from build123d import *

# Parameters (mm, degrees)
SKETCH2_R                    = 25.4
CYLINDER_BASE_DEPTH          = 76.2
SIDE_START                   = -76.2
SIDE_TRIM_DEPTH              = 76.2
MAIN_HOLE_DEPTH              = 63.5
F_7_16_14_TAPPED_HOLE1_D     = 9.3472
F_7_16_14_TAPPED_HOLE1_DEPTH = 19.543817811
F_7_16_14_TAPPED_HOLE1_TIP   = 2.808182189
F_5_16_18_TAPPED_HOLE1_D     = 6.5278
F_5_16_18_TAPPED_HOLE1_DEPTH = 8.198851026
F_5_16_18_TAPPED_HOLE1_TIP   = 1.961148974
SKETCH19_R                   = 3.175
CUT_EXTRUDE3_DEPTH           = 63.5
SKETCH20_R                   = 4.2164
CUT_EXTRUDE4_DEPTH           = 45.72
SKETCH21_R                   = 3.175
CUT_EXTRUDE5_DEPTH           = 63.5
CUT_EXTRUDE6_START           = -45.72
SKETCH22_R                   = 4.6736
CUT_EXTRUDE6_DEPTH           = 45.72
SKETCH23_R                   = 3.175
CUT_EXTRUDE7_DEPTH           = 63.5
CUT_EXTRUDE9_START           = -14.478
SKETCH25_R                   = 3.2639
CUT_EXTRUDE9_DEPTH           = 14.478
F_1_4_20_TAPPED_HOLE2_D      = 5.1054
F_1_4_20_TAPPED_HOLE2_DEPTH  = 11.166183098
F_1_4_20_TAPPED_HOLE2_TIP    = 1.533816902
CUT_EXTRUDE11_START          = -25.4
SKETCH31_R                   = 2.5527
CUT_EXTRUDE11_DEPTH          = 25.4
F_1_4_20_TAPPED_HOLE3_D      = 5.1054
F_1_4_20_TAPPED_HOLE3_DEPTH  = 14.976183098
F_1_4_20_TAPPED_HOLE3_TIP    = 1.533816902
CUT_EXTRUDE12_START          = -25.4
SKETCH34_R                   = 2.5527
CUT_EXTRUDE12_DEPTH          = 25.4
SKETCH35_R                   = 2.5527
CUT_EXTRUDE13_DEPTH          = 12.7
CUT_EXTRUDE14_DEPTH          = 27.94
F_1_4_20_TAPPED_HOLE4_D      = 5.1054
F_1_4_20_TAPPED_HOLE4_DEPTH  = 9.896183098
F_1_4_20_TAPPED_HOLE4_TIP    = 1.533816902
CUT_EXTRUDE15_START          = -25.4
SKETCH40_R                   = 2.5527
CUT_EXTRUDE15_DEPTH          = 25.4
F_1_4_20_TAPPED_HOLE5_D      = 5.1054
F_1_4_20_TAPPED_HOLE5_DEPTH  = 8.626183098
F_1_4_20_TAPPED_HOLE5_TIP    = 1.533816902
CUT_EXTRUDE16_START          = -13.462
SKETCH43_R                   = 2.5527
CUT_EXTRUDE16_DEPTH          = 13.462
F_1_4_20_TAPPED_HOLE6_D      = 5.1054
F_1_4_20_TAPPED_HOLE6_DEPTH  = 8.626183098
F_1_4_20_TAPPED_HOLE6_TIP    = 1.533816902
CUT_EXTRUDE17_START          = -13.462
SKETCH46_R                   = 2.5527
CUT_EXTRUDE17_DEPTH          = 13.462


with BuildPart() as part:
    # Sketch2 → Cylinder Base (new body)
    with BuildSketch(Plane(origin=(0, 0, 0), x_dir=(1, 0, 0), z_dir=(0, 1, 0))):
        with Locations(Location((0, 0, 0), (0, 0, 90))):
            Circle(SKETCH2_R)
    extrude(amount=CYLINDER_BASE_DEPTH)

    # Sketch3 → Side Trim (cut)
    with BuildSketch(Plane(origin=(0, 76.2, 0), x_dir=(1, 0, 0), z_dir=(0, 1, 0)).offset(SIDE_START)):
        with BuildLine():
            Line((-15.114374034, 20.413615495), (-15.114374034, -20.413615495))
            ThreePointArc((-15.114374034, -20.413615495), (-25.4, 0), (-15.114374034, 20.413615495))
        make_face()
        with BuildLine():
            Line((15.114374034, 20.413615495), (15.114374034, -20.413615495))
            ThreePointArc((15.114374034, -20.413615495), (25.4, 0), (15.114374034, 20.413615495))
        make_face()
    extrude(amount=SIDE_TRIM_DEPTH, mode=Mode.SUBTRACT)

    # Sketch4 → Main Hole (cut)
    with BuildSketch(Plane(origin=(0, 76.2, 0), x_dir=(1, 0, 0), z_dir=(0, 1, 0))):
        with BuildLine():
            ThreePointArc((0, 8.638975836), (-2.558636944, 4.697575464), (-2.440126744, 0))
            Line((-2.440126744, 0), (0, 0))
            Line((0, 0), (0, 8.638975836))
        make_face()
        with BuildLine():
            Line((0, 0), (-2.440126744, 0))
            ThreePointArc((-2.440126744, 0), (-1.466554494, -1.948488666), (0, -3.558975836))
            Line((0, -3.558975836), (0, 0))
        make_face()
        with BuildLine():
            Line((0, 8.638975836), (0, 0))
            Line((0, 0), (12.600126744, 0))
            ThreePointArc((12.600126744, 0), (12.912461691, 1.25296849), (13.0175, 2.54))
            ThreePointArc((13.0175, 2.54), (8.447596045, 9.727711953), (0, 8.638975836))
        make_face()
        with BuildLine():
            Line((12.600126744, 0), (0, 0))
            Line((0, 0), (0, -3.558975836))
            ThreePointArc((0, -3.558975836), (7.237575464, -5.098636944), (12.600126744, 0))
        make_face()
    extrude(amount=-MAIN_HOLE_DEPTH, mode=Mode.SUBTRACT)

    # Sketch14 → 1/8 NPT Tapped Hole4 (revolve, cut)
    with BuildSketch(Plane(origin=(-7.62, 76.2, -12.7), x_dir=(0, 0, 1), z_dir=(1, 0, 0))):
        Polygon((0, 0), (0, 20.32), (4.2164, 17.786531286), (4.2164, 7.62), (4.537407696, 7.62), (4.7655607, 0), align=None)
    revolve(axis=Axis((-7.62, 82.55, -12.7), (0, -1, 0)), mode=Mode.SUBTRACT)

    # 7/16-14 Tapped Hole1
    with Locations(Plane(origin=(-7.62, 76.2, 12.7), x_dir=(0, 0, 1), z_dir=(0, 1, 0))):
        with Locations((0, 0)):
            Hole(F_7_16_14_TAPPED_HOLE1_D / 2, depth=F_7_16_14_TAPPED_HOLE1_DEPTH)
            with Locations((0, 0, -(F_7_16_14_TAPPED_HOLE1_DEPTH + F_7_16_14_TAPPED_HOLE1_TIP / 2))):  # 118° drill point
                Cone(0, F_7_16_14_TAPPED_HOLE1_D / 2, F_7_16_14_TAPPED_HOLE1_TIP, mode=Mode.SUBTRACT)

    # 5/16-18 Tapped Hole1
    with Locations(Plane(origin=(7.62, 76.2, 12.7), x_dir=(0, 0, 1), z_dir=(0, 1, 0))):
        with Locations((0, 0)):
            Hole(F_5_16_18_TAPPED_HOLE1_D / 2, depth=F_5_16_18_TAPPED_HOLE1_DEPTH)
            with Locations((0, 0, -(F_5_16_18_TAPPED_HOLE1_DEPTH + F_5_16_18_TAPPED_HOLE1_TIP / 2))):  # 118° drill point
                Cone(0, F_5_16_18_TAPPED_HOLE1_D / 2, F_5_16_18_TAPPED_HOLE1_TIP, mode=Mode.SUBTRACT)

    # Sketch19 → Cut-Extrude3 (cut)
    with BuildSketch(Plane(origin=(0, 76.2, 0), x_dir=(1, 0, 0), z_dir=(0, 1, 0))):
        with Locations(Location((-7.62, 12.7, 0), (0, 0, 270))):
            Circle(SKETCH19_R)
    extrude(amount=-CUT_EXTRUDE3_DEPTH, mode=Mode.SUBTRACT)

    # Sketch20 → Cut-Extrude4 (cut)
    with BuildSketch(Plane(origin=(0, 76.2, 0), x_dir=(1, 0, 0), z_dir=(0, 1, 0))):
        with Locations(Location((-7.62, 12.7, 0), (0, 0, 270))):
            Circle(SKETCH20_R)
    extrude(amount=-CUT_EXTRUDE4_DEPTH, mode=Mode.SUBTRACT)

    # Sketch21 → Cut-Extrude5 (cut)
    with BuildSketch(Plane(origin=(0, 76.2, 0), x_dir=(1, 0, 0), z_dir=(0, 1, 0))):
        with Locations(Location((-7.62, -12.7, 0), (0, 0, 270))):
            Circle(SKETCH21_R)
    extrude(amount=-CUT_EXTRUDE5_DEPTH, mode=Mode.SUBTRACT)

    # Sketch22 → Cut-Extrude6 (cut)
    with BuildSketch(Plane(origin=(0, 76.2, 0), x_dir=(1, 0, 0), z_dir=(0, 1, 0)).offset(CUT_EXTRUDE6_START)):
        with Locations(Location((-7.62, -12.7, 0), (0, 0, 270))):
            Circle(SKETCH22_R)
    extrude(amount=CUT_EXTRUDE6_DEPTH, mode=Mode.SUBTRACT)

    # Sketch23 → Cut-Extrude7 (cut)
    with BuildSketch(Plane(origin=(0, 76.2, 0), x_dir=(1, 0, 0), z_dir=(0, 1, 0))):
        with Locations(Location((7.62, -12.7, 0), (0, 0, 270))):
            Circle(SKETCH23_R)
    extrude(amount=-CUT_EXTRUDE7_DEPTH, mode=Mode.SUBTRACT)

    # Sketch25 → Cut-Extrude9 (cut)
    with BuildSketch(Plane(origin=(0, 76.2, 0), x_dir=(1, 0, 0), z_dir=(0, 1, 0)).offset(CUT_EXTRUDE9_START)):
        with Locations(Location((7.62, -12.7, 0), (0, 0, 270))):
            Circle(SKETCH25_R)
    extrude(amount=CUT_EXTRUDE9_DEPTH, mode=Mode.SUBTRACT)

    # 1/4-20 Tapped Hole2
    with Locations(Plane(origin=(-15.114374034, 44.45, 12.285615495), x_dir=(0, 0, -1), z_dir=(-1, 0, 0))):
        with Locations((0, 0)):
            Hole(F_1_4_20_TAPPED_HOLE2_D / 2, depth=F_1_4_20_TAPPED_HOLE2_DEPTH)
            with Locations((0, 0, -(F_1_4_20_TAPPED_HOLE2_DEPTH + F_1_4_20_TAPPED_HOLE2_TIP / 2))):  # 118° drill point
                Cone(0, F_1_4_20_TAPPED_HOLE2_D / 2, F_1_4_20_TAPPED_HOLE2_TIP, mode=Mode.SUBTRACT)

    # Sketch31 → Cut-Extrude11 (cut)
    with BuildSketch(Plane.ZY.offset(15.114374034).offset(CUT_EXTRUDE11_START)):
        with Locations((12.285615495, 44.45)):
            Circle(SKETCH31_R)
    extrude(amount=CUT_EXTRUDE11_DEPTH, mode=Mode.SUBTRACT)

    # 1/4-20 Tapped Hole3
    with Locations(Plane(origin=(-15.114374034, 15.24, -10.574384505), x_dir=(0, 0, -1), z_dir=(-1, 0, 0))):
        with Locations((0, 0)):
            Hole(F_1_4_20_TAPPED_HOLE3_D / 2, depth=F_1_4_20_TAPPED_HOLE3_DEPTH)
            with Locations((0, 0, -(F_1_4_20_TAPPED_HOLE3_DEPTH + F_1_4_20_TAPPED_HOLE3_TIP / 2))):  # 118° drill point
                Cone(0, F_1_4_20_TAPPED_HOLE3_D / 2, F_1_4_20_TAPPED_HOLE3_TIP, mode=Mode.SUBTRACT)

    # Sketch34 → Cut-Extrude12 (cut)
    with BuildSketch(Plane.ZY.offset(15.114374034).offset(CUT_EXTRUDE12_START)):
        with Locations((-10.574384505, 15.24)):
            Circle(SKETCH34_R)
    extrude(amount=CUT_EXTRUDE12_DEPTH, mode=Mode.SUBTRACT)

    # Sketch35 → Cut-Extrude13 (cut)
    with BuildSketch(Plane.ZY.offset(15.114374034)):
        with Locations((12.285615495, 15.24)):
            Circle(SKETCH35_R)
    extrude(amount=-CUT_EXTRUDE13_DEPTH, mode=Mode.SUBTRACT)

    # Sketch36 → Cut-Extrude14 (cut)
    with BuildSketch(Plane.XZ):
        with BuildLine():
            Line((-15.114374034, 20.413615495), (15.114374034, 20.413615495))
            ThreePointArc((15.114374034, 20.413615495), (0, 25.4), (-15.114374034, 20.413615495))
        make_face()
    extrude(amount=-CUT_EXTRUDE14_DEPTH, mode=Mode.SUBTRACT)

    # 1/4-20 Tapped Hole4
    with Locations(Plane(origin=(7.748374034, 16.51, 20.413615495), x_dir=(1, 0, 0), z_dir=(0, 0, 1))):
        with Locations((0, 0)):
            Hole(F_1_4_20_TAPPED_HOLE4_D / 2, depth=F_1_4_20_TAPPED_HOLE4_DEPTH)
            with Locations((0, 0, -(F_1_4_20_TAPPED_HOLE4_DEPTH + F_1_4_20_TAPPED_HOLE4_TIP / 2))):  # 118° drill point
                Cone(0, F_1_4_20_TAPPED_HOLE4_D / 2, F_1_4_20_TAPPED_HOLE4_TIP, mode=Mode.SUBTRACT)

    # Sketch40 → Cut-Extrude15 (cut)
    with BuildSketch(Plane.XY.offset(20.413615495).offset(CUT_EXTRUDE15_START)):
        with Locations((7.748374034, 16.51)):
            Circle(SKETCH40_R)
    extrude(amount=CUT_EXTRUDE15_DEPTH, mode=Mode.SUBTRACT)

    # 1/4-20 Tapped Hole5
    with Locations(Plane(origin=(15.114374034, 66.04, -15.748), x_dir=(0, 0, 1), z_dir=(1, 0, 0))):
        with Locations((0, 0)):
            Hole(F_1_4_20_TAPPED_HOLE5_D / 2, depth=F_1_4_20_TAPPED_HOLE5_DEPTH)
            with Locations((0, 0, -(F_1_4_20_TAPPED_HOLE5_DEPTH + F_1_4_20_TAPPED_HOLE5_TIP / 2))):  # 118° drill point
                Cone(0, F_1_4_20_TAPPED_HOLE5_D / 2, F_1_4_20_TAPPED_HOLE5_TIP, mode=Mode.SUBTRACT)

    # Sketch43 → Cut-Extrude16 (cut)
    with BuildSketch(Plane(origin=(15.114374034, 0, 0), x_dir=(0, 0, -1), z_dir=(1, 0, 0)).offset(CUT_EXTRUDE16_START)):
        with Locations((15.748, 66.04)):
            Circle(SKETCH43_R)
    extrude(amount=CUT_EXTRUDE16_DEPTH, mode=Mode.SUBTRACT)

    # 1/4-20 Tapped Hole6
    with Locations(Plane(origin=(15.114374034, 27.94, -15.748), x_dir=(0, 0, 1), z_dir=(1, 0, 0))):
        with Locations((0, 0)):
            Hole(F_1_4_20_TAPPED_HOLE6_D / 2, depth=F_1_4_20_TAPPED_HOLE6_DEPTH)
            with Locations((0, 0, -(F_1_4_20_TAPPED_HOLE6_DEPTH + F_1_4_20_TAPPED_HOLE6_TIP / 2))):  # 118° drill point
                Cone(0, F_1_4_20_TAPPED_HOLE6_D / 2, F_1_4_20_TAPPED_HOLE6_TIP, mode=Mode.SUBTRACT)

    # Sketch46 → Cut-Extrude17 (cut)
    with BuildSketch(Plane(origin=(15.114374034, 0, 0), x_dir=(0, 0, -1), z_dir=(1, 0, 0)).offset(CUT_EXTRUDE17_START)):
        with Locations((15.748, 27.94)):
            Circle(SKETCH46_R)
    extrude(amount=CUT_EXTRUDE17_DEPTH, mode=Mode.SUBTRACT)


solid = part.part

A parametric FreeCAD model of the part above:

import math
import FreeCAD as App
import Part
import Sketcher
from FreeCAD import Vector
Q = App.Units.Quantity

doc = App.newDocument("Part")
body = doc.addObject("PartDesign::Body", "Body")

sketch1 = body.newObject("Sketcher::SketchObject", "Sketch")
sketch1.AttachmentSupport = (doc.getObject("XZ_Plane"), [""])
sketch1.MapMode = "FlatFace"
sketch1.addGeometry(Part.Circle(Vector(0, 0, 0), Vector(0, 0, 1), 25), False)
sketch1.addConstraint([
    Sketcher.Constraint("Coincident", 0, 3, -1, 1),
    Sketcher.Constraint("Diameter", 0, Q("2 in")),
])
pad1 = body.newObject("PartDesign::Pad", "Pad")
pad1.Profile = sketch1
pad1.Length = Q("3 in")
pad1.Reversed = True

sketch2 = body.newObject("Sketcher::SketchObject", "Sketch001")
sketch2.AttachmentSupport = (doc.getObject("XZ_Plane"), [""])
sketch2.MapMode = "FlatFace"
sketch2.addGeometry([
    Part.LineSegment(Vector(-15, 20, 0), Vector(-15, -20, 0)),
    Part.ArcOfCircle(Part.Circle(Vector(0, 0, 0), Vector(0, 0, 1), 25), math.radians(127), math.radians(233)),
    Part.LineSegment(Vector(15, -20, 0), Vector(15, 20, 0)),
    Part.ArcOfCircle(Part.Circle(Vector(0, 0, 0), Vector(0, 0, 1), 25), math.radians(-53), math.radians(53)),
], False)
sketch2.addConstraint([
    Sketcher.Constraint("Coincident", 0, 1, 1, 1),
    Sketcher.Constraint("Coincident", 1, 2, 0, 2),
    Sketcher.Constraint("Coincident", 2, 1, 3, 1),
    Sketcher.Constraint("Coincident", 3, 2, 2, 2),
    Sketcher.Constraint("Vertical", 0),
    Sketcher.Constraint("Vertical", 2),
    Sketcher.Constraint("Coincident", 1, 3, -1, 1),
    Sketcher.Constraint("Coincident", 3, 3, -1, 1),
    Sketcher.Constraint("Equal", 1, 3),
    Sketcher.Constraint("Horizontal", 1, 2, 2, 1),
    Sketcher.Constraint("Radius", 1, Q("1 in")),
    Sketcher.Constraint("DistanceY", 0, 2, 0, 1, Q("40.827231 mm")),
])
pocket1 = body.newObject("PartDesign::Pocket", "Pocket")
pocket1.Profile = sketch2
pocket1.Length = Q("3 in")

sketch3 = body.newObject("Sketcher::SketchObject", "Sketch002")
sketch3.AttachmentSupport = (doc.getObject("XZ_Plane"), [""])
sketch3.MapMode = "FlatFace"
sketch3.AttachmentOffset = App.Placement(Vector(0, 0, -3 * 25.4), App.Rotation())
sketch3.addGeometry([
    Part.ArcOfCircle(Part.Circle(Vector(5.1, -2.5, 0), Vector(0, 0, 1), 7.9), math.radians(19), math.radians(130)),
    Part.ArcOfCircle(Part.Circle(Vector(5.1, -2.5, 0), Vector(0, 0, 1), 7.9), math.radians(0), math.radians(18.66)),
    Part.ArcOfCircle(Part.Circle(Vector(5.1, -2.5, 0), Vector(0, 0, 1), 7.9), math.radians(-130), math.radians(0)),
    Part.ArcOfCircle(Part.Circle(Vector(5.1, -2.5, 0), Vector(0, 0, 1), 7.9), math.radians(161), math.radians(230)),
    Part.ArcOfCircle(Part.Circle(Vector(5.1, -2.5, 0), Vector(0, 0, 1), 7.9), math.radians(130), math.radians(161)),
], False)
sketch3.addConstraint([
    Sketcher.Constraint("Tangent", 0, 1, 1, 2),
    Sketcher.Constraint("Tangent", 1, 1, 2, 2),
    Sketcher.Constraint("Tangent", 2, 1, 3, 2),
    Sketcher.Constraint("Tangent", 3, 1, 4, 2),
    Sketcher.Constraint("Tangent", 4, 1, 0, 2),
    Sketcher.Constraint("Coincident", 2, 3, 0, 3),
    Sketcher.Constraint("PointOnObject", 0, 1, -1),
    Sketcher.Constraint("PointOnObject", 2, 1, -2),
    Sketcher.Constraint("PointOnObject", 3, 1, -1),
    Sketcher.Constraint("PointOnObject", 4, 1, -2),
    Sketcher.Constraint("Horizontal", 4, 3, 1, 1),
    Sketcher.Constraint("Radius", 0, Q("0.3125 in")),
    Sketcher.Constraint("DistanceX", -1, 1, 0, 3, Q("0.2 in")),
    Sketcher.Constraint("DistanceY", 0, 3, -1, 1, Q("0.1 in")),
])
pocket2 = body.newObject("PartDesign::Pocket", "Pocket001")
pocket2.Profile = sketch3
pocket2.Length = Q("2.5 in")
pocket2.Reversed = True

sketch4 = body.newObject("Sketcher::SketchObject", "Sketch003")
sketch4.AttachmentSupport = (doc.getObject("YZ_Plane"), [""])
sketch4.MapMode = "FlatFace"
sketch4.AttachmentOffset = App.Placement(Vector(0, 0, -0.3 * 25.4), App.Rotation())
sketch4.addGeometry([
    Part.LineSegment(Vector(55.88, -12.7, 0), Vector(76.2, -12.7, 0)),
    Part.LineSegment(Vector(76.2, -12.7, 0), Vector(76.2, -7.93, 0)),
    Part.LineSegment(Vector(76.2, -7.93, 0), Vector(68.58, -8.16, 0)),
    Part.LineSegment(Vector(68.58, -8.16, 0), Vector(68.58, -8.48, 0)),
    Part.LineSegment(Vector(68.58, -8.48, 0), Vector(58.41, -8.48, 0)),
    Part.LineSegment(Vector(58.41, -8.48, 0), Vector(55.88, -12.7, 0)),
], False)
sketch4.addGeometry(Part.LineSegment(Vector(76.2, -12.7, 0), Vector(55.88, -12.7, 0)), True)
sketch4.addConstraint([
    Sketcher.Constraint("Coincident", 0, 2, 1, 1),
    Sketcher.Constraint("Coincident", 1, 2, 2, 1),
    Sketcher.Constraint("Coincident", 2, 2, 3, 1),
    Sketcher.Constraint("Coincident", 3, 2, 4, 1),
    Sketcher.Constraint("Coincident", 4, 2, 5, 1),
    Sketcher.Constraint("Coincident", 5, 2, 0, 1),
    Sketcher.Constraint("Horizontal", 0),
    Sketcher.Constraint("Vertical", 1),
    Sketcher.Constraint("Vertical", 3),
    Sketcher.Constraint("Horizontal", 4),
    Sketcher.Constraint("Horizontal", 6),
    Sketcher.Constraint("Coincident", 6, 1, 0, 2),
    Sketcher.Constraint("Equal", 0, 6),
    Sketcher.Constraint("DistanceX", 0, 1, 0, 2, Q("0.8 in")),
    Sketcher.Constraint("DistanceX", -1, 1, 0, 2, Q("3 in")),
    Sketcher.Constraint("Angle", 5, Q("-121 deg")),
    Sketcher.Constraint("DistanceY", 0, 2, -1, 1, Q("0.5 in")),
    Sketcher.Constraint("DistanceX", -1, 1, 2, 2, Q("2.7 in")),
    Sketcher.Constraint("DistanceY", 3, 2, -1, 1, Q("0.334 in")),
    Sketcher.Constraint("DistanceY", 1, 1, 1, 2, Q("4.765561 mm")),
    Sketcher.Constraint("DistanceY", 3, 2, 3, 1, Q("0.321008 mm")),
])
groove = body.newObject("PartDesign::Groove", "Groove")
groove.Profile = sketch4
groove.ReferenceAxis = (sketch4, ["Axis0"])
groove.Angle = 360

sketch5 = body.newObject("Sketcher::SketchObject", "Sketch004")
sketch5.AttachmentSupport = (doc.getObject("XZ_Plane"), [""])
sketch5.MapMode = "FlatFace"
sketch5.AttachmentOffset = App.Placement(Vector(0, 0, -3 * 25.4), App.Rotation())
sketch5.addGeometry(Part.Circle(Vector(-7.6, 12.7, 0), Vector(0, 0, 1), 4.7), False)
sketch5.addConstraint([
    Sketcher.Constraint("Diameter", 0, Q("0.368 in")),
    Sketcher.Constraint("DistanceX", 0, 3, -1, 1, Q("0.3 in")),
    Sketcher.Constraint("DistanceY", -1, 1, 0, 3, Q("0.5 in")),
])
doc.recompute()
hole = body.newObject("PartDesign::Hole", "Hole")
hole.Profile = sketch5
hole.ThreadType = "None"
hole.Diameter = Q("0.368 in")
hole.DepthType = "Dimension"
hole.Depth = 19.543818
hole.DrillPoint = "Angled"
hole.DrillPointAngle = 118
hole.Reversed = True

sketch6 = body.newObject("Sketcher::SketchObject", "Sketch005")
sketch6.AttachmentSupport = (doc.getObject("XZ_Plane"), [""])
sketch6.MapMode = "FlatFace"
sketch6.AttachmentOffset = App.Placement(Vector(0, 0, -3 * 25.4), App.Rotation())
sketch6.addGeometry(Part.Circle(Vector(7.6, 12.7, 0), Vector(0, 0, 1), 3.3), False)
sketch6.addConstraint([
    Sketcher.Constraint("Diameter", 0, Q("0.257 in")),
    Sketcher.Constraint("DistanceX", -1, 1, 0, 3, Q("0.3 in")),
    Sketcher.Constraint("DistanceY", -1, 1, 0, 3, Q("0.5 in")),
])
doc.recompute()
hole2 = body.newObject("PartDesign::Hole", "Hole001")
hole2.Profile = sketch6
hole2.ThreadType = "None"
hole2.Diameter = Q("0.257 in")
hole2.DepthType = "Dimension"
hole2.Depth = 8.198851
hole2.DrillPoint = "Angled"
hole2.DrillPointAngle = 118
hole2.Reversed = True

sketch7 = body.newObject("Sketcher::SketchObject", "Sketch006")
sketch7.AttachmentSupport = (doc.getObject("XZ_Plane"), [""])
sketch7.MapMode = "FlatFace"
sketch7.AttachmentOffset = App.Placement(Vector(0, 0, -3 * 25.4), App.Rotation())
sketch7.addGeometry(Part.Circle(Vector(-7.6, -12.7, 0), Vector(0, 0, 1), 3.2), False)
sketch7.addConstraint([
    Sketcher.Constraint("Diameter", 0, Q("0.25 in")),
    Sketcher.Constraint("DistanceX", 0, 3, -1, 1, Q("0.3 in")),
    Sketcher.Constraint("DistanceY", 0, 3, -1, 1, Q("0.5 in")),
])
pocket3 = body.newObject("PartDesign::Pocket", "Pocket002")
pocket3.Profile = sketch7
pocket3.Length = Q("2.5 in")
pocket3.Reversed = True

sketch8 = body.newObject("Sketcher::SketchObject", "Sketch007")
sketch8.AttachmentSupport = (doc.getObject("XZ_Plane"), [""])
sketch8.MapMode = "FlatFace"
sketch8.AttachmentOffset = App.Placement(Vector(0, 0, -3 * 25.4), App.Rotation())
sketch8.addGeometry(Part.Circle(Vector(-7.6, -12.7, 0), Vector(0, 0, 1), 4.2), False)
sketch8.addConstraint([
    Sketcher.Constraint("Diameter", 0, Q("0.332 in")),
    Sketcher.Constraint("DistanceX", 0, 3, -1, 1, Q("0.3 in")),
    Sketcher.Constraint("DistanceY", 0, 3, -1, 1, Q("0.5 in")),
])
pocket4 = body.newObject("PartDesign::Pocket", "Pocket003")
pocket4.Profile = sketch8
pocket4.Length = Q("1.8 in")
pocket4.Reversed = True

sketch9 = body.newObject("Sketcher::SketchObject", "Sketch008")
sketch9.AttachmentSupport = (doc.getObject("XZ_Plane"), [""])
sketch9.MapMode = "FlatFace"
sketch9.AttachmentOffset = App.Placement(Vector(0, 0, -3 * 25.4), App.Rotation())
sketch9.addGeometry(Part.Circle(Vector(-7.6, 12.7, 0), Vector(0, 0, 1), 3.2), False)
sketch9.addConstraint([
    Sketcher.Constraint("Diameter", 0, Q("0.25 in")),
    Sketcher.Constraint("DistanceX", 0, 3, -1, 1, Q("0.3 in")),
    Sketcher.Constraint("DistanceY", -1, 1, 0, 3, Q("0.5 in")),
])
pocket5 = body.newObject("PartDesign::Pocket", "Pocket004")
pocket5.Profile = sketch9
pocket5.Length = Q("2.5 in")
pocket5.Reversed = True

sketch10 = body.newObject("Sketcher::SketchObject", "Sketch009")
sketch10.AttachmentSupport = (doc.getObject("XZ_Plane"), [""])
sketch10.MapMode = "FlatFace"
sketch10.AttachmentOffset = App.Placement(Vector(0, 0, -1.2 * 25.4), App.Rotation())
sketch10.addGeometry(Part.Circle(Vector(-7.6, 12.7, 0), Vector(0, 0, 1), 4.7), False)
sketch10.addConstraint([
    Sketcher.Constraint("Diameter", 0, Q("0.368 in")),
    Sketcher.Constraint("DistanceX", 0, 3, -1, 1, Q("0.3 in")),
    Sketcher.Constraint("DistanceY", -1, 1, 0, 3, Q("0.5 in")),
])
pocket6 = body.newObject("PartDesign::Pocket", "Pocket005")
pocket6.Profile = sketch10
pocket6.Length = Q("1.8 in")

sketch11 = body.newObject("Sketcher::SketchObject", "Sketch010")
sketch11.AttachmentSupport = (doc.getObject("XZ_Plane"), [""])
sketch11.MapMode = "FlatFace"
sketch11.AttachmentOffset = App.Placement(Vector(0, 0, -3 * 25.4), App.Rotation())
sketch11.addGeometry(Part.Circle(Vector(7.6, 12.7, 0), Vector(0, 0, 1), 3.2), False)
sketch11.addConstraint([
    Sketcher.Constraint("Diameter", 0, Q("0.25 in")),
    Sketcher.Constraint("DistanceX", -1, 1, 0, 3, Q("0.3 in")),
    Sketcher.Constraint("DistanceY", -1, 1, 0, 3, Q("0.5 in")),
])
pocket7 = body.newObject("PartDesign::Pocket", "Pocket006")
pocket7.Profile = sketch11
pocket7.Length = Q("2.5 in")
pocket7.Reversed = True

sketch12 = body.newObject("Sketcher::SketchObject", "Sketch011")
sketch12.AttachmentSupport = (doc.getObject("XZ_Plane"), [""])
sketch12.MapMode = "FlatFace"
sketch12.AttachmentOffset = App.Placement(Vector(0, 0, -2.43 * 25.4), App.Rotation())
sketch12.addGeometry(Part.Circle(Vector(7.6, 12.7, 0), Vector(0, 0, 1), 3.3), False)
sketch12.addConstraint([
    Sketcher.Constraint("Diameter", 0, Q("0.257 in")),
    Sketcher.Constraint("DistanceX", -1, 1, 0, 3, Q("0.3 in")),
    Sketcher.Constraint("DistanceY", -1, 1, 0, 3, Q("0.5 in")),
])
pocket8 = body.newObject("PartDesign::Pocket", "Pocket007")
pocket8.Profile = sketch12
pocket8.Length = Q("0.57 in")

sketch13 = body.newObject("Sketcher::SketchObject", "Sketch012")
sketch13.AttachmentSupport = (doc.getObject("YZ_Plane"), [""])
sketch13.MapMode = "FlatFace"
sketch13.AttachmentOffset = App.Placement(Vector(0, 0, -15.114374), App.Rotation())
sketch13.addGeometry(Part.Circle(Vector(44.5, 12.3, 0), Vector(0, 0, 1), 2.6), False)
sketch13.addConstraint([
    Sketcher.Constraint("Diameter", 0, Q("0.201 in")),
    Sketcher.Constraint("DistanceX", -1, 1, 0, 3, Q("1.75 in")),
    Sketcher.Constraint("DistanceY", -1, 1, 0, 3, Q("12.285615 mm")),
])
doc.recompute()
hole3 = body.newObject("PartDesign::Hole", "Hole002")
hole3.Profile = sketch13
hole3.ThreadType = "None"
hole3.Diameter = Q("0.201 in")
hole3.DepthType = "Dimension"
hole3.Depth = 11.166183
hole3.DrillPoint = "Angled"
hole3.DrillPointAngle = 118
hole3.Reversed = True

sketch14 = body.newObject("Sketcher::SketchObject", "Sketch013")
sketch14.AttachmentSupport = (doc.getObject("YZ_Plane"), [""])
sketch14.MapMode = "FlatFace"
sketch14.AttachmentOffset = App.Placement(Vector(0, 0, 10.285626), App.Rotation())
sketch14.addGeometry(Part.Circle(Vector(44.5, 12.3, 0), Vector(0, 0, 1), 2.6), False)
sketch14.addConstraint([
    Sketcher.Constraint("Diameter", 0, Q("0.201 in")),
    Sketcher.Constraint("DistanceX", -1, 1, 0, 3, Q("1.75 in")),
    Sketcher.Constraint("DistanceY", -1, 1, 0, 3, Q("12.285615 mm")),
])
pocket9 = body.newObject("PartDesign::Pocket", "Pocket008")
pocket9.Profile = sketch14
pocket9.Length = Q("1 in")

sketch15 = body.newObject("Sketcher::SketchObject", "Sketch014")
sketch15.AttachmentSupport = (doc.getObject("YZ_Plane"), [""])
sketch15.MapMode = "FlatFace"
sketch15.AttachmentOffset = App.Placement(Vector(0, 0, -15.114374), App.Rotation())
sketch15.addGeometry(Part.Circle(Vector(15.2, -10.6, 0), Vector(0, 0, 1), 2.6), False)
sketch15.addConstraint([
    Sketcher.Constraint("Diameter", 0, Q("0.201 in")),
    Sketcher.Constraint("DistanceX", -1, 1, 0, 3, Q("0.6 in")),
    Sketcher.Constraint("DistanceY", 0, 3, -1, 1, Q("10.574385 mm")),
])
doc.recompute()
hole4 = body.newObject("PartDesign::Hole", "Hole003")
hole4.Profile = sketch15
hole4.ThreadType = "None"
hole4.Diameter = Q("0.201 in")
hole4.DepthType = "Dimension"
hole4.Depth = 14.976183
hole4.DrillPoint = "Angled"
hole4.DrillPointAngle = 118
hole4.Reversed = True

sketch16 = body.newObject("Sketcher::SketchObject", "Sketch015")
sketch16.AttachmentSupport = (doc.getObject("YZ_Plane"), [""])
sketch16.MapMode = "FlatFace"
sketch16.AttachmentOffset = App.Placement(Vector(0, 0, 10.285626), App.Rotation())
sketch16.addGeometry(Part.Circle(Vector(15.2, -10.6, 0), Vector(0, 0, 1), 2.6), False)
sketch16.addConstraint([
    Sketcher.Constraint("Diameter", 0, Q("0.201 in")),
    Sketcher.Constraint("DistanceX", -1, 1, 0, 3, Q("0.6 in")),
    Sketcher.Constraint("DistanceY", 0, 3, -1, 1, Q("10.574385 mm")),
])
pocket10 = body.newObject("PartDesign::Pocket", "Pocket009")
pocket10.Profile = sketch16
pocket10.Length = Q("1 in")

sketch17 = body.newObject("Sketcher::SketchObject", "Sketch016")
sketch17.AttachmentSupport = (doc.getObject("YZ_Plane"), [""])
sketch17.MapMode = "FlatFace"
sketch17.AttachmentOffset = App.Placement(Vector(0, 0, -15.114374), App.Rotation())
sketch17.addGeometry(Part.Circle(Vector(15.2, 12.3, 0), Vector(0, 0, 1), 2.6), False)
sketch17.addConstraint([
    Sketcher.Constraint("Diameter", 0, Q("0.201 in")),
    Sketcher.Constraint("DistanceX", -1, 1, 0, 3, Q("0.6 in")),
    Sketcher.Constraint("DistanceY", -1, 1, 0, 3, Q("12.285615 mm")),
])
pocket11 = body.newObject("PartDesign::Pocket", "Pocket010")
pocket11.Profile = sketch17
pocket11.Length = Q("0.5 in")
pocket11.Reversed = True

sketch18 = body.newObject("Sketcher::SketchObject", "Sketch017")
sketch18.AttachmentSupport = (doc.getObject("XZ_Plane"), [""])
sketch18.MapMode = "FlatFace"
sketch18.addGeometry([
    Part.LineSegment(Vector(-15, 20, 0), Vector(15, 20, 0)),
    Part.ArcOfCircle(Part.Circle(Vector(0, 0, 0), Vector(0, 0, 1), 25), math.radians(53), math.radians(127)),
], False)
sketch18.addConstraint([
    Sketcher.Constraint("Coincident", 0, 1, 1, 2),
    Sketcher.Constraint("Coincident", 1, 1, 0, 2),
    Sketcher.Constraint("Horizontal", 0),
    Sketcher.Constraint("Coincident", 1, 3, -1, 1),
    Sketcher.Constraint("Radius", 1, Q("1 in")),
    Sketcher.Constraint("DistanceX", 0, 1, 0, 2, Q("30.228748 mm")),
])
pocket12 = body.newObject("PartDesign::Pocket", "Pocket011")
pocket12.Profile = sketch18
pocket12.Length = Q("1.1 in")

sketch19 = body.newObject("Sketcher::SketchObject", "Sketch018")
sketch19.AttachmentSupport = (doc.getObject("XY_Plane"), [""])
sketch19.MapMode = "FlatFace"
sketch19.AttachmentOffset = App.Placement(Vector(0, 0, 20.413615), App.Rotation())
sketch19.addGeometry(Part.Circle(Vector(7.7, 16.5, 0), Vector(0, 0, 1), 2.6), False)
sketch19.addConstraint([
    Sketcher.Constraint("Diameter", 0, Q("0.201 in")),
    Sketcher.Constraint("DistanceY", -1, 1, 0, 3, Q("0.65 in")),
    Sketcher.Constraint("DistanceX", -1, 1, 0, 3, Q("7.748374 mm")),
])
doc.recompute()
hole5 = body.newObject("PartDesign::Hole", "Hole004")
hole5.Profile = sketch19
hole5.ThreadType = "None"
hole5.Diameter = Q("0.201 in")
hole5.DepthType = "Dimension"
hole5.Depth = 9.896183
hole5.DrillPoint = "Angled"
hole5.DrillPointAngle = 118

sketch20 = body.newObject("Sketcher::SketchObject", "Sketch019")
sketch20.AttachmentSupport = (doc.getObject("XY_Plane"), [""])
sketch20.MapMode = "FlatFace"
sketch20.AttachmentOffset = App.Placement(Vector(0, 0, -4.986385), App.Rotation())
sketch20.addGeometry(Part.Circle(Vector(7.7, 16.5, 0), Vector(0, 0, 1), 2.6), False)
sketch20.addConstraint([
    Sketcher.Constraint("Diameter", 0, Q("0.201 in")),
    Sketcher.Constraint("DistanceY", -1, 1, 0, 3, Q("0.65 in")),
    Sketcher.Constraint("DistanceX", -1, 1, 0, 3, Q("7.748374 mm")),
])
pocket13 = body.newObject("PartDesign::Pocket", "Pocket012")
pocket13.Profile = sketch20
pocket13.Length = Q("1 in")
pocket13.Reversed = True

sketch21 = body.newObject("Sketcher::SketchObject", "Sketch020")
sketch21.AttachmentSupport = (doc.getObject("YZ_Plane"), [""])
sketch21.MapMode = "FlatFace"
sketch21.AttachmentOffset = App.Placement(Vector(0, 0, 15.114374), App.Rotation())
sketch21.addGeometry(Part.Circle(Vector(66, -15.7, 0), Vector(0, 0, 1), 2.6), False)
sketch21.addConstraint([
    Sketcher.Constraint("Diameter", 0, Q("0.201 in")),
    Sketcher.Constraint("DistanceX", -1, 1, 0, 3, Q("2.6 in")),
    Sketcher.Constraint("DistanceY", 0, 3, -1, 1, Q("0.62 in")),
])
doc.recompute()
hole6 = body.newObject("PartDesign::Hole", "Hole005")
hole6.Profile = sketch21
hole6.ThreadType = "None"
hole6.Diameter = Q("0.201 in")
hole6.DepthType = "Dimension"
hole6.Depth = 8.626183
hole6.DrillPoint = "Angled"
hole6.DrillPointAngle = 118

sketch22 = body.newObject("Sketcher::SketchObject", "Sketch021")
sketch22.AttachmentSupport = (doc.getObject("YZ_Plane"), [""])
sketch22.MapMode = "FlatFace"
sketch22.AttachmentOffset = App.Placement(Vector(0, 0, 1.652374), App.Rotation())
sketch22.addGeometry(Part.Circle(Vector(66, -15.7, 0), Vector(0, 0, 1), 2.6), False)
sketch22.addConstraint([
    Sketcher.Constraint("Diameter", 0, Q("0.201 in")),
    Sketcher.Constraint("DistanceX", -1, 1, 0, 3, Q("2.6 in")),
    Sketcher.Constraint("DistanceY", 0, 3, -1, 1, Q("0.62 in")),
])
pocket14 = body.newObject("PartDesign::Pocket", "Pocket013")
pocket14.Profile = sketch22
pocket14.Length = Q("0.53 in")
pocket14.Reversed = True

sketch23 = body.newObject("Sketcher::SketchObject", "Sketch022")
sketch23.AttachmentSupport = (doc.getObject("YZ_Plane"), [""])
sketch23.MapMode = "FlatFace"
sketch23.AttachmentOffset = App.Placement(Vector(0, 0, 15.114374), App.Rotation())
sketch23.addGeometry(Part.Circle(Vector(27.9, -15.7, 0), Vector(0, 0, 1), 2.6), False)
sketch23.addConstraint([
    Sketcher.Constraint("Diameter", 0, Q("0.201 in")),
    Sketcher.Constraint("DistanceX", -1, 1, 0, 3, Q("1.1 in")),
    Sketcher.Constraint("DistanceY", 0, 3, -1, 1, Q("0.62 in")),
])
doc.recompute()
hole7 = body.newObject("PartDesign::Hole", "Hole006")
hole7.Profile = sketch23
hole7.ThreadType = "None"
hole7.Diameter = Q("0.201 in")
hole7.DepthType = "Dimension"
hole7.Depth = 8.626183
hole7.DrillPoint = "Angled"
hole7.DrillPointAngle = 118

sketch24 = body.newObject("Sketcher::SketchObject", "Sketch023")
sketch24.AttachmentSupport = (doc.getObject("YZ_Plane"), [""])
sketch24.MapMode = "FlatFace"
sketch24.AttachmentOffset = App.Placement(Vector(0, 0, 1.652374), App.Rotation())
sketch24.addGeometry(Part.Circle(Vector(27.9, -15.7, 0), Vector(0, 0, 1), 2.6), False)
sketch24.addConstraint([
    Sketcher.Constraint("Diameter", 0, Q("0.201 in")),
    Sketcher.Constraint("DistanceX", -1, 1, 0, 3, Q("1.1 in")),
    Sketcher.Constraint("DistanceY", 0, 3, -1, 1, Q("0.62 in")),
])
pocket15 = body.newObject("PartDesign::Pocket", "Pocket014")
pocket15.Profile = sketch24
pocket15.Length = Q("0.53 in")
pocket15.Reversed = True

doc.recompute()
